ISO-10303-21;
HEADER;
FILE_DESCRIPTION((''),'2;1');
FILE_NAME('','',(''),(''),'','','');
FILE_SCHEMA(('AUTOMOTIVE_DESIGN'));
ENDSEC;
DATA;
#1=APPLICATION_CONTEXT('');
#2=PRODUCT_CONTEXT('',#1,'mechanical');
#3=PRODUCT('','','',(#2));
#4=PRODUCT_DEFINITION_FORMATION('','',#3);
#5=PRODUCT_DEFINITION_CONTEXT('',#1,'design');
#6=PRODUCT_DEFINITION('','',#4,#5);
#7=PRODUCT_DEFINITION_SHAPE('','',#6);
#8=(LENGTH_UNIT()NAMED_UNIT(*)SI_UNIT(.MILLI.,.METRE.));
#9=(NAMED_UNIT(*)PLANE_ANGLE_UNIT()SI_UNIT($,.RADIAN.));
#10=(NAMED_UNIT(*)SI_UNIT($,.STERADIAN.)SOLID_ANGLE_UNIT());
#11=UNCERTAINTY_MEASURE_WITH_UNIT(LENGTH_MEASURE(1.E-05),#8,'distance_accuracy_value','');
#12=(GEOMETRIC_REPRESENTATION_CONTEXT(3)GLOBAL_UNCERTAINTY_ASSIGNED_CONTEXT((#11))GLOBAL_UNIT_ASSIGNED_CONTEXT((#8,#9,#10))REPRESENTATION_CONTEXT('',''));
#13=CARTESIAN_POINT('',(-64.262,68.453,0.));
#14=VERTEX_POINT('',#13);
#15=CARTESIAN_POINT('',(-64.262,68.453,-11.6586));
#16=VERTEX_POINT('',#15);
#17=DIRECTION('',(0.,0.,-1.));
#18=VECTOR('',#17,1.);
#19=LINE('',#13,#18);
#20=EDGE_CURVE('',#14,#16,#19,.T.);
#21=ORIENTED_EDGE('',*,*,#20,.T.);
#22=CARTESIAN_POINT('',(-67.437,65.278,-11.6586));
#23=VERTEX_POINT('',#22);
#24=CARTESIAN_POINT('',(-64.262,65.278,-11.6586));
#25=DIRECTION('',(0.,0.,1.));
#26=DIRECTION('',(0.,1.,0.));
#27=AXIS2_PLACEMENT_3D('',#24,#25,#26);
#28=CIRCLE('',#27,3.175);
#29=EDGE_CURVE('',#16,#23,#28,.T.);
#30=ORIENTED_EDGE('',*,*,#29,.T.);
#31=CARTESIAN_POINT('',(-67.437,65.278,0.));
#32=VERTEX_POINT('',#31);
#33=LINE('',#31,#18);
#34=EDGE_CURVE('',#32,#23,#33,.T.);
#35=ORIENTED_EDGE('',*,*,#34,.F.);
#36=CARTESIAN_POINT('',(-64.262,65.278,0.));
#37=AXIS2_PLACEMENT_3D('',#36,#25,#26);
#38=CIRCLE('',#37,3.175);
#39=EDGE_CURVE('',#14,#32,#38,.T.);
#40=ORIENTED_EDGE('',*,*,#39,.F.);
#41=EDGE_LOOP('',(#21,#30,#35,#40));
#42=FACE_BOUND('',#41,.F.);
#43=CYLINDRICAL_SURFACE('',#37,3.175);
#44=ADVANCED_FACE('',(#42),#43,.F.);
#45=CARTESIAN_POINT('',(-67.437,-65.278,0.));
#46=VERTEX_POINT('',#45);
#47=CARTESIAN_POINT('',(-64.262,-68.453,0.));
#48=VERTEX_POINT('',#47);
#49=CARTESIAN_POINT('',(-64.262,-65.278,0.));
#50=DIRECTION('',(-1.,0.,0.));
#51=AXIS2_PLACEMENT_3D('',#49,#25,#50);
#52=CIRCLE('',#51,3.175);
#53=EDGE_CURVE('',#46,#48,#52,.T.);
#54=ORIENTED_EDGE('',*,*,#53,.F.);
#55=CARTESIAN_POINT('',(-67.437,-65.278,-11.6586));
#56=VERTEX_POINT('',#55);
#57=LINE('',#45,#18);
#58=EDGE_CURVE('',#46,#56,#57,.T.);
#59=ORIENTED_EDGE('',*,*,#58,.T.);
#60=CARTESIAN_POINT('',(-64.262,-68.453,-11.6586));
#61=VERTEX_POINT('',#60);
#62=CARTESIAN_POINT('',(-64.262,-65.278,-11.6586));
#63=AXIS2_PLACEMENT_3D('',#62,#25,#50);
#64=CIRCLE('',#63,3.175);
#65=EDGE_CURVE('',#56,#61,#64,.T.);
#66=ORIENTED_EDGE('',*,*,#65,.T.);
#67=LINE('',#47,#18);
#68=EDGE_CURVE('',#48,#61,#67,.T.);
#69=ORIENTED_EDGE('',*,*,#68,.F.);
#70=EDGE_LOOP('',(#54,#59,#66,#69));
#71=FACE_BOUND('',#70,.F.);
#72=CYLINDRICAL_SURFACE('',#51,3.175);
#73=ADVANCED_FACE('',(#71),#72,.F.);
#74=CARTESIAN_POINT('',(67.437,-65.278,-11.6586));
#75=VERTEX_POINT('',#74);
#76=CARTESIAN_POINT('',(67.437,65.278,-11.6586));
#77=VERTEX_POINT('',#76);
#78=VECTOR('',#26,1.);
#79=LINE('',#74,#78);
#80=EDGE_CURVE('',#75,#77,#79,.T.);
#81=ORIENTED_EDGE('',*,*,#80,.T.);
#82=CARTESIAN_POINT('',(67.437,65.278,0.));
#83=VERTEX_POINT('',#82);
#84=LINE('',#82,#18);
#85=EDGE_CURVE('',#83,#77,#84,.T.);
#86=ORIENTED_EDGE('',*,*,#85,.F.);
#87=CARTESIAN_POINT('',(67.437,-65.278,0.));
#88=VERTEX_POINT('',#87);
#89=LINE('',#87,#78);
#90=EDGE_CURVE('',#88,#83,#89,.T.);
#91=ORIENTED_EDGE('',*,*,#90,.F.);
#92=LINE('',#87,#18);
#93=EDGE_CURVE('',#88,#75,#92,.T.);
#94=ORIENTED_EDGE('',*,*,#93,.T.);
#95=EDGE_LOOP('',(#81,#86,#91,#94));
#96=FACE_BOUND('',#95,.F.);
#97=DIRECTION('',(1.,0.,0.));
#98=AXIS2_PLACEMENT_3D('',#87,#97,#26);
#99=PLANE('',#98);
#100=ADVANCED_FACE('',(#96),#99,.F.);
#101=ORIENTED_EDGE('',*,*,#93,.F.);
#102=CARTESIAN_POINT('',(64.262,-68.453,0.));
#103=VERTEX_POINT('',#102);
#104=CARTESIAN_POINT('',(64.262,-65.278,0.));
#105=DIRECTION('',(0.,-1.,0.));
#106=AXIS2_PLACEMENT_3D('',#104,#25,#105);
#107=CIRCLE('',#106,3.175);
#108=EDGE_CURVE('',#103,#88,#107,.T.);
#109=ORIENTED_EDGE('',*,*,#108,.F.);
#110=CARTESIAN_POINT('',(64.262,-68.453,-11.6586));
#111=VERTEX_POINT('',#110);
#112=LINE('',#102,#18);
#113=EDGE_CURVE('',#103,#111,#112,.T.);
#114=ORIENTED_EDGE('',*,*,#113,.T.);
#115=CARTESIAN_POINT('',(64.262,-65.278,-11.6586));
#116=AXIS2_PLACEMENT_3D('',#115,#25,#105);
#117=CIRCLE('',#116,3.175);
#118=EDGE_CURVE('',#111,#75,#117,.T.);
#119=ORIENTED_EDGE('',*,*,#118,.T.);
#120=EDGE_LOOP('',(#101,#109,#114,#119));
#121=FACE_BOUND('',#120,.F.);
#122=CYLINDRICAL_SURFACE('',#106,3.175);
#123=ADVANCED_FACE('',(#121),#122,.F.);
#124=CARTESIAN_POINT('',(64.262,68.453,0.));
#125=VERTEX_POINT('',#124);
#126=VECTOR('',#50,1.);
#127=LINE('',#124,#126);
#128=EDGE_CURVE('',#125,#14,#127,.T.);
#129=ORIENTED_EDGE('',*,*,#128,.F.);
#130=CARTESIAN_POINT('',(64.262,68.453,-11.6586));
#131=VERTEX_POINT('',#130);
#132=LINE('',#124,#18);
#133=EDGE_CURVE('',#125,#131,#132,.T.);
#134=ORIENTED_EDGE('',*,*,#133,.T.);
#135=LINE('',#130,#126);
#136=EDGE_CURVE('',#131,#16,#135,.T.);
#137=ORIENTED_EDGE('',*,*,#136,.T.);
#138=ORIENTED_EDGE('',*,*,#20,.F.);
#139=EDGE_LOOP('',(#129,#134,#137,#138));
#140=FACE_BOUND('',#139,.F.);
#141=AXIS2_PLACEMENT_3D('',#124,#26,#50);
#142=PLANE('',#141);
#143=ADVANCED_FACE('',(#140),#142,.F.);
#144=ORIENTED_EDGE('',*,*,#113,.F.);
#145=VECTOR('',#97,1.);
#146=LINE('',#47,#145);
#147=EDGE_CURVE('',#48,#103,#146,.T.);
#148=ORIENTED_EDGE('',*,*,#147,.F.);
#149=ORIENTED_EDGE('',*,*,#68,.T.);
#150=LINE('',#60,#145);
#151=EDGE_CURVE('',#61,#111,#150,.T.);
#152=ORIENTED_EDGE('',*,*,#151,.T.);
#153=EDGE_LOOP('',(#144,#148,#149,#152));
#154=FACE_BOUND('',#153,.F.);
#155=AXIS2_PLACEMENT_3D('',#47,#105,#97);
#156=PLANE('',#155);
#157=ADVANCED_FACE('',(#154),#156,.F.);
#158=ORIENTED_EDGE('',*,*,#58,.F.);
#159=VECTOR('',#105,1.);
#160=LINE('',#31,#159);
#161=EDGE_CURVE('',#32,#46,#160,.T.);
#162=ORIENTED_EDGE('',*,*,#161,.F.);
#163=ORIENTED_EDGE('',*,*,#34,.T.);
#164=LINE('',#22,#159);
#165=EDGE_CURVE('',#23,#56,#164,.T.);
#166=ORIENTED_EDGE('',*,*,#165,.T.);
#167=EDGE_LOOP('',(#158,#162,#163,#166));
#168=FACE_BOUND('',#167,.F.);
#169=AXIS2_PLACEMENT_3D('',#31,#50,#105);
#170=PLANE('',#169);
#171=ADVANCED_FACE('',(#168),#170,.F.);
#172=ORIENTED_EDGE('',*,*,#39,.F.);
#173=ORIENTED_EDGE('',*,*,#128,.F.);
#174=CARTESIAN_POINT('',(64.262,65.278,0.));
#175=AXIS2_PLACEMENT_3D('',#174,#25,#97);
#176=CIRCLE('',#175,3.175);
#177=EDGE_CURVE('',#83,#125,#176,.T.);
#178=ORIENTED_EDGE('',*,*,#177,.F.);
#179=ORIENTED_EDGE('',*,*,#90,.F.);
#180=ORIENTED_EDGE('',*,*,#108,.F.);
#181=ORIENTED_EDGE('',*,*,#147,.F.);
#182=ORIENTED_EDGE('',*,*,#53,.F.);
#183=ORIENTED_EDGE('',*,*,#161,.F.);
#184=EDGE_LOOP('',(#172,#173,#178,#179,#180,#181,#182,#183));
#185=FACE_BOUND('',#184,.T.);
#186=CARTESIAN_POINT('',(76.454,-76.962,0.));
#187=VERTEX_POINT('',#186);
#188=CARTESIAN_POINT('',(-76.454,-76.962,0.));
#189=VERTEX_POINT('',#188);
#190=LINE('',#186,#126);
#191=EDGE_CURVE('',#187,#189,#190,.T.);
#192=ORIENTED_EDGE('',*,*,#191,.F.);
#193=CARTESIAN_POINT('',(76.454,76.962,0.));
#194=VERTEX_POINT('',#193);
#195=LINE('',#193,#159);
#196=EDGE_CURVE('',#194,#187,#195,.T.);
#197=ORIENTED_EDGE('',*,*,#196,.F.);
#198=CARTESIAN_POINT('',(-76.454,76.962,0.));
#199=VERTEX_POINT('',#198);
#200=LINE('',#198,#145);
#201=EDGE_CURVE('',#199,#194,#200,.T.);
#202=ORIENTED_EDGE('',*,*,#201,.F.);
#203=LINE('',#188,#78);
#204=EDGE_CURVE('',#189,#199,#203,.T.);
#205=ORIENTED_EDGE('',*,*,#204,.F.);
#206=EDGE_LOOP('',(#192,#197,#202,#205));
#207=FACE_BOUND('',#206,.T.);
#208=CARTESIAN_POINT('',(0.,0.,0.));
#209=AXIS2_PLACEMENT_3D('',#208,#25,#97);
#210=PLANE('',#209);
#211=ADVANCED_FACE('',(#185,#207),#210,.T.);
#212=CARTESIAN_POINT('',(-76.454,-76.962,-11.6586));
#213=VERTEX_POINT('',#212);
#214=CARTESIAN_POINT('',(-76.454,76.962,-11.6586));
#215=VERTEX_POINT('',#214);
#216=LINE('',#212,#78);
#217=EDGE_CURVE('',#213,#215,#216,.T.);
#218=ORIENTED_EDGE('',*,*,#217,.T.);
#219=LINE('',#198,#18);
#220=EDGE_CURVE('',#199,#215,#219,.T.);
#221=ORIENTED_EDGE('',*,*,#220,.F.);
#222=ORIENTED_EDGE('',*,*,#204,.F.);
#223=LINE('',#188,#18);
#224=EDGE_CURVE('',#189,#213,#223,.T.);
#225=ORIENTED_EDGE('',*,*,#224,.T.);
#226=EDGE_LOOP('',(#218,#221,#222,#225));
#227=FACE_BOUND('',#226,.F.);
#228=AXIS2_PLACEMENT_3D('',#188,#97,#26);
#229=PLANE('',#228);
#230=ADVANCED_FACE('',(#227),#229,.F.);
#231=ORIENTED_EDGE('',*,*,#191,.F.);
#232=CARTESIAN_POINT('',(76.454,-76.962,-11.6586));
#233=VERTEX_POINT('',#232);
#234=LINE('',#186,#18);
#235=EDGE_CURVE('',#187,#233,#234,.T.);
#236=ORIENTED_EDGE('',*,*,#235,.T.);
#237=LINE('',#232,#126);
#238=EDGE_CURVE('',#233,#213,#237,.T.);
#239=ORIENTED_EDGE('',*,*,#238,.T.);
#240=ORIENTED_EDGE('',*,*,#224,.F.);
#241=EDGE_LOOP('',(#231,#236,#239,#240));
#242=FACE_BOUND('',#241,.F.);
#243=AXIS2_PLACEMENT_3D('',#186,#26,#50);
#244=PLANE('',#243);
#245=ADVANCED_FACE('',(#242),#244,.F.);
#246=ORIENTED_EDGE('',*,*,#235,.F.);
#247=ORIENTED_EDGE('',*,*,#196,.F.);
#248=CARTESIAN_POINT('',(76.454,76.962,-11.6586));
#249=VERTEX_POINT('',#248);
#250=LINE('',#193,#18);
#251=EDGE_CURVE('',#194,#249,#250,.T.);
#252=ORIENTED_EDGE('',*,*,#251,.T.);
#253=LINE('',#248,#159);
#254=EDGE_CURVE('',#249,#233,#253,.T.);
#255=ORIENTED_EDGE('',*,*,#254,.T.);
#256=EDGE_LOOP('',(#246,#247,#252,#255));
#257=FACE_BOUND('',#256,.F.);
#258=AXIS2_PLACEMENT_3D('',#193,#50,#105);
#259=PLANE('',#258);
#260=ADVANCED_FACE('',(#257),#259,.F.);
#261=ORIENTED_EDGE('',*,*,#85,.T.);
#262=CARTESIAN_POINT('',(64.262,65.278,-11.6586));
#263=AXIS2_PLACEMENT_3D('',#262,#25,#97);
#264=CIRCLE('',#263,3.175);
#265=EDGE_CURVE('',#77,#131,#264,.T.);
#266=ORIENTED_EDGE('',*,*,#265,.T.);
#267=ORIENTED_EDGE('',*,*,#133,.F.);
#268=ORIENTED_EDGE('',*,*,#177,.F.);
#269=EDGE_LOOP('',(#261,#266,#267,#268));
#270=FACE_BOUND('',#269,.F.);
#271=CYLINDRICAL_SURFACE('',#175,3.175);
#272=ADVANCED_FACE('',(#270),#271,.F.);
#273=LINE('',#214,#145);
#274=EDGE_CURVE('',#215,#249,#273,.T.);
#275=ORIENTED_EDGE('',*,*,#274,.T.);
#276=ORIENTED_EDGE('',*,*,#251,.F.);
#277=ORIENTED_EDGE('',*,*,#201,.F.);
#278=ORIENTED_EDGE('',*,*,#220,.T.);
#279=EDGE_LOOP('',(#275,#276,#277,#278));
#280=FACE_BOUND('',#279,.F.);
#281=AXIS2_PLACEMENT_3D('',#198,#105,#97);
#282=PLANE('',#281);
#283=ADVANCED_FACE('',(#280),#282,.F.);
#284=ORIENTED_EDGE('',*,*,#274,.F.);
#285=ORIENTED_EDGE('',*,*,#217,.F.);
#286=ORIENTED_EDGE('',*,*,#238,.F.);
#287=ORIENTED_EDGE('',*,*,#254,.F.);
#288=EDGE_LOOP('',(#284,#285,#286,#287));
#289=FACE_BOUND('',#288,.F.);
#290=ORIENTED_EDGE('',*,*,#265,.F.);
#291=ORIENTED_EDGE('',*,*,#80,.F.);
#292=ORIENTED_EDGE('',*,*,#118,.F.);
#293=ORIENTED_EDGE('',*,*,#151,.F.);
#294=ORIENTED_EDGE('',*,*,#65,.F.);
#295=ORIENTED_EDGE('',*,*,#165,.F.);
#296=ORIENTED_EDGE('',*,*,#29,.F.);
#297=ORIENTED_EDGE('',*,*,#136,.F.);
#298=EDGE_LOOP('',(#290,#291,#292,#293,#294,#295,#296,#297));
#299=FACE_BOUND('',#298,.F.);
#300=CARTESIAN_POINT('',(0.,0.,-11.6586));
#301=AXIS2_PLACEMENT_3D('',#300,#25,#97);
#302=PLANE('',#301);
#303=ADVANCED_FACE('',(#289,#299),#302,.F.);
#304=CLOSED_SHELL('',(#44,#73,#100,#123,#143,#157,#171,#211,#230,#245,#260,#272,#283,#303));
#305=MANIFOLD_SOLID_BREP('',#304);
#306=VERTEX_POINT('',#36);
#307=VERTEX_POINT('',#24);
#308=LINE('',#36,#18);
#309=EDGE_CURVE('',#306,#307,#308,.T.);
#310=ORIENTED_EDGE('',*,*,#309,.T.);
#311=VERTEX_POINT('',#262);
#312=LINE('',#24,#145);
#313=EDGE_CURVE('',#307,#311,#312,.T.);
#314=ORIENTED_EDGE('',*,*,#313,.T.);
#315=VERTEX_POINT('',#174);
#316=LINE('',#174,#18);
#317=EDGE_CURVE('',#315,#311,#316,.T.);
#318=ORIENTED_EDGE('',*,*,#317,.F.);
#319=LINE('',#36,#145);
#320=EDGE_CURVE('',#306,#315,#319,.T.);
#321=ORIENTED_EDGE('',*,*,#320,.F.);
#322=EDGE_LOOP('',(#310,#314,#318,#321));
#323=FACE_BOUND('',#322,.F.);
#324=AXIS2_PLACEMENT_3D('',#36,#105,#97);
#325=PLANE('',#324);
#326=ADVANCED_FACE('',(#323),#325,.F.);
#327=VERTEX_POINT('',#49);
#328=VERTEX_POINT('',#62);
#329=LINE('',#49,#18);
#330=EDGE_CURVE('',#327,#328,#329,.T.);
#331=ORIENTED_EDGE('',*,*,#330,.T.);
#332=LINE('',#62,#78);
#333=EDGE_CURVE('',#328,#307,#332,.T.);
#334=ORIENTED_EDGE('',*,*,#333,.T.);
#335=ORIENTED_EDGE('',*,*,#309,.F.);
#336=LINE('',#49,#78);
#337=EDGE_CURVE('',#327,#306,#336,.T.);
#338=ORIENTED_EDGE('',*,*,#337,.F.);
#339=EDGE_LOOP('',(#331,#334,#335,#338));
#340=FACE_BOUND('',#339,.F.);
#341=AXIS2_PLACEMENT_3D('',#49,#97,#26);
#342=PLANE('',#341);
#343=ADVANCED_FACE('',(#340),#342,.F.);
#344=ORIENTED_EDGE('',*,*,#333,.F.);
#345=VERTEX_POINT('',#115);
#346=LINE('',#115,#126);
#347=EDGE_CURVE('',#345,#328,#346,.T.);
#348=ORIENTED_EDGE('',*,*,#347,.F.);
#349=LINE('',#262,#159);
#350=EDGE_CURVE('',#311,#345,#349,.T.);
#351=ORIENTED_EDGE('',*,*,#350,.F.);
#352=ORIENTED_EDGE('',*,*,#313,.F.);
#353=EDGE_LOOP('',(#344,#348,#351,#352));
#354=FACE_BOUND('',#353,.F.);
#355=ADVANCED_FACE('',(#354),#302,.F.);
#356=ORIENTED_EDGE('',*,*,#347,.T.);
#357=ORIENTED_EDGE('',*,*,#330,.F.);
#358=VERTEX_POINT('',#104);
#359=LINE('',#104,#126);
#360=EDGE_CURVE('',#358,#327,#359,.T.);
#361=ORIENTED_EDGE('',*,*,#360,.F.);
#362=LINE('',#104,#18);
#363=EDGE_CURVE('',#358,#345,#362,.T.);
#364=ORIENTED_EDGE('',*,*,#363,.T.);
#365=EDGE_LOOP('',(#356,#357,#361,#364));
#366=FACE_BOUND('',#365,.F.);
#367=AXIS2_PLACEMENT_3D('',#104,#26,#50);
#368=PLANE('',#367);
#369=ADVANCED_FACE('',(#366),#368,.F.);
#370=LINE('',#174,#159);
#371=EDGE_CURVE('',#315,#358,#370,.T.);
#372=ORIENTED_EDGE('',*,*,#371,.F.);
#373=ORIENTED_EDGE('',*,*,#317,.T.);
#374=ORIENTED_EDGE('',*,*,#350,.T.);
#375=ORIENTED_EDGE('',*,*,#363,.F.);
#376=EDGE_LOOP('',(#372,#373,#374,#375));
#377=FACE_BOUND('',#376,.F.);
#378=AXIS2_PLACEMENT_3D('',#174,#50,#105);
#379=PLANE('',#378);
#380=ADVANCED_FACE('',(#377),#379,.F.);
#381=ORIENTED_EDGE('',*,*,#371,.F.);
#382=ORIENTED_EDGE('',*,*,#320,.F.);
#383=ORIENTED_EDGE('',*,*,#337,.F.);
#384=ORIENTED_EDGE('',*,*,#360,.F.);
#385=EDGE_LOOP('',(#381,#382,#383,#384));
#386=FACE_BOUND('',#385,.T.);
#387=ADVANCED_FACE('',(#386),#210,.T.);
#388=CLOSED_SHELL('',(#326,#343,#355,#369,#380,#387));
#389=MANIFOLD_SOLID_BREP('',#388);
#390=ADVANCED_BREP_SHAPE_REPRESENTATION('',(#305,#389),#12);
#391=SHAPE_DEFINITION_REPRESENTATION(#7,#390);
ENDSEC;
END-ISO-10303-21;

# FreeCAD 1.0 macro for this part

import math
import FreeCAD as App
import Part
import Sketcher

V = App.Vector
Q = App.Units.Quantity

doc = App.newDocument("Part")
body = doc.addObject("PartDesign::Body", "Body")
body.AllowCompound = True

# Sketch on XY plane
sketch1 = body.newObject("Sketcher::SketchObject", "Sketch")
sketch1.AttachmentSupport = (doc.getObject("XY_Plane"), [""])
sketch1.MapMode = "FlatFace"
sketch1.addGeometry(Part.LineSegment(V(-64.3, -65.3, 0), V(64.3, -65.3, 0)), False)
sketch1.addGeometry(Part.LineSegment(V(64.3, -65.3, 0), V(64.3, 65.3, 0)), False)
sketch1.addGeometry(Part.LineSegment(V(64.3, 65.3, 0), V(-64.3, 65.3, 0)), False)
sketch1.addGeometry(Part.LineSegment(V(-64.3, 65.3, 0), V(-64.3, -65.3, 0)), False)
sketch1.addGeometry(Part.LineSegment(V(-76.5, -77, 0), V(76.5, -77, 0)), False)
sketch1.addGeometry(Part.LineSegment(V(76.5, -77, 0), V(76.5, 77, 0)), False)
sketch1.addGeometry(Part.LineSegment(V(76.5, 77, 0), V(-76.5, 77, 0)), False)
sketch1.addGeometry(Part.LineSegment(V(-76.5, 77, 0), V(-76.5, -77, 0)), False)
sketch1.addGeometry(Part.LineSegment(V(-64.3, 68.5, 0), V(64.3, 68.5, 0)), False)
sketch1.addGeometry(Part.ArcOfCircle(Part.Circle(V(64.3, 65.3, 0), V(0, 0, 1), 3.2), math.radians(0), math.radians(90)), False)
sketch1.addGeometry(Part.LineSegment(V(67.4, 65.3, 0), V(67.4, -65.3, 0)), False)
sketch1.addGeometry(Part.ArcOfCircle(Part.Circle(V(64.3, -65.3, 0), V(0, 0, 1), 3.2), math.radians(-90), math.radians(0)), False)
sketch1.addGeometry(Part.LineSegment(V(64.3, -68.5, 0), V(-64.3, -68.5, 0)), False)
sketch1.addGeometry(Part.ArcOfCircle(Part.Circle(V(-64.3, -65.3, 0), V(0, 0, 1), 3.2), math.radians(180), math.radians(270)), False)
sketch1.addGeometry(Part.LineSegment(V(-67.4, -65.3, 0), V(-67.4, 65.3, 0)), False)
sketch1.addGeometry(Part.ArcOfCircle(Part.Circle(V(-64.3, 65.3, 0), V(0, 0, 1), 3.2), math.radians(90), math.radians(180)), False)
sketch1.addConstraint(Sketcher.Constraint("Coincident", 0, 2, 1, 1))
sketch1.addConstraint(Sketcher.Constraint("Coincident", 1, 2, 2, 1))
sketch1.addConstraint(Sketcher.Constraint("Coincident", 2, 2, 3, 1))
sketch1.addConstraint(Sketcher.Constraint("Coincident", 3, 2, 0, 1))
sketch1.addConstraint(Sketcher.Constraint("Coincident", 4, 2, 5, 1))
sketch1.addConstraint(Sketcher.Constraint("Coincident", 5, 2, 6, 1))
sketch1.addConstraint(Sketcher.Constraint("Coincident", 6, 2, 7, 1))
sketch1.addConstraint(Sketcher.Constraint("Coincident", 7, 2, 4, 1))
sketch1.addConstraint(Sketcher.Constraint("Tangent", 8, 2, 9, 2))
sketch1.addConstraint(Sketcher.Constraint("Tangent", 9, 1, 10, 1))
sketch1.addConstraint(Sketcher.Constraint("Tangent", 10, 2, 11, 2))
sketch1.addConstraint(Sketcher.Constraint("Tangent", 11, 1, 12, 1))
sketch1.addConstraint(Sketcher.Constraint("Tangent", 12, 2, 13, 2))
sketch1.addConstraint(Sketcher.Constraint("Tangent", 13, 1, 14, 1))
sketch1.addConstraint(Sketcher.Constraint("Tangent", 14, 2, 15, 2))
sketch1.addConstraint(Sketcher.Constraint("Tangent", 15, 1, 8, 1))
sketch1.addConstraint(Sketcher.Constraint("Horizontal", 0))
sketch1.addConstraint(Sketcher.Constraint("Vertical", 1))
sketch1.addConstraint(Sketcher.Constraint("Horizontal", 2))
sketch1.addConstraint(Sketcher.Constraint("Vertical", 3))
sketch1.addConstraint(Sketcher.Constraint("Horizontal", 4))
sketch1.addConstraint(Sketcher.Constraint("Vertical", 5))
sketch1.addConstraint(Sketcher.Constraint("Horizontal", 6))
sketch1.addConstraint(Sketcher.Constraint("Vertical", 7))
sketch1.addConstraint(Sketcher.Constraint("Horizontal", 8))
sketch1.addConstraint(Sketcher.Constraint("Vertical", 10))
sketch1.addConstraint(Sketcher.Constraint("Horizontal", 12))
sketch1.addConstraint(Sketcher.Constraint("Vertical", 14))
sketch1.addConstraint(Sketcher.Constraint("Coincident", 0, 2, 11, 3))
sketch1.addConstraint(Sketcher.Constraint("Coincident", 1, 2, 9, 3))
sketch1.addConstraint(Sketcher.Constraint("Coincident", 2, 2, 15, 3))
sketch1.addConstraint(Sketcher.Constraint("Equal", 11, 13))
sketch1.addConstraint(Sketcher.Constraint("Symmetric", 9, 3, 13, 3, -1, 1))
sketch1.addConstraint(Sketcher.Constraint("Symmetric", 4, 2, 6, 2, -1, 1))
sketch1.addConstraint(Sketcher.Constraint("Radius", 9, Q("0.125 in")))
sketch1.addConstraint(Sketcher.Constraint("DistanceX", 0, 1, 0, 2, Q("5.06 in")))
sketch1.addConstraint(Sketcher.Constraint("DistanceX", 4, 1, 4, 2, Q("6.02 in")))
sketch1.addConstraint(Sketcher.Constraint("DistanceY", 1, 1, 1, 2, Q("5.14 in")))
sketch1.addConstraint(Sketcher.Constraint("DistanceY", 5, 1, 5, 2, Q("6.06 in")))
pad1 = body.newObject("PartDesign::Pad", "Pad")
pad1.Profile = sketch1
pad1.Length = Q("0.459 in")
pad1.Reversed = True

doc.recompute()
